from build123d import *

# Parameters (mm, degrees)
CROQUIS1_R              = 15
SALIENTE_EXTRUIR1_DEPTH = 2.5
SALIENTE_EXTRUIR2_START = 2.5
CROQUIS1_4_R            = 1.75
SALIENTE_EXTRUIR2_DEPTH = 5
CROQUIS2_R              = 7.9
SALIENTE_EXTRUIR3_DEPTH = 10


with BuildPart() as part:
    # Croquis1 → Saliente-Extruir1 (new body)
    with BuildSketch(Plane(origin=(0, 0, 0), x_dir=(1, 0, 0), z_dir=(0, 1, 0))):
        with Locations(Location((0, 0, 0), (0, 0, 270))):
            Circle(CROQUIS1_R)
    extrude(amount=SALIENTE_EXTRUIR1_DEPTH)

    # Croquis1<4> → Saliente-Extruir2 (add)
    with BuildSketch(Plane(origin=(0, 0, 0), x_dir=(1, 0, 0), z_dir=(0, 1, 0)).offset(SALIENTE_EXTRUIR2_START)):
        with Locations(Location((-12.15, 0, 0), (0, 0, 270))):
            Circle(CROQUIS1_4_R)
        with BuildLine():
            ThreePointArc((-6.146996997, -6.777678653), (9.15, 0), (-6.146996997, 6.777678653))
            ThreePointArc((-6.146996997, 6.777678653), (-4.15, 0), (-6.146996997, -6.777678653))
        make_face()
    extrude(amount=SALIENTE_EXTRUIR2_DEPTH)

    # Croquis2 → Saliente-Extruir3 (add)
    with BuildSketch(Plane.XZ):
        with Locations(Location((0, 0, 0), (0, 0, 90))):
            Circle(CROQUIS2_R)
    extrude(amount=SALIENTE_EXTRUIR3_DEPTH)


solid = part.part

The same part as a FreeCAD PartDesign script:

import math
import FreeCAD as App
import Part
import Sketcher
Q = App.Units.Quantity

doc = App.newDocument("Part")
params = doc.addObject("Spreadsheet::Sheet", "Params")
for row, (alias, value) in enumerate([
    ("sketch1_diameter", "30 mm"),
    ("pad1_length", "2.5 mm"),
    ("sketch2_diameter", "3.5 mm"),
    ("sketch2_radius", "12.5 mm"),
    ("sketch2_radius2", "9.15 mm"),
    ("pad2_length", "5 mm"),
    ("sketch3_diameter", "15.8 mm"),
    ("pad3_length", "10 mm"),
], start=1):
    params.set(f"A{row}", alias)
    params.set(f"B{row}", "=" + value)
    params.setAlias(f"B{row}", alias)

body = doc.addObject("PartDesign::Body", "Body")

# Sketch on XZ plane
sketch1 = doc.addObject("Sketcher::SketchObject", "Sketch")
body.addObject(sketch1)
sketch1.AttachmentSupport = (doc.XZ_Plane, [""])
sketch1.MapMode = "FlatFace"
sketch1.addGeometry(Part.Circle(App.Vector(0, 0, 0), App.Vector(0, 0, 1), 15), False)
sketch1.addConstraint(Sketcher.Constraint("Coincident", 0, 3, -1, 1))
sketch1.addConstraint(Sketcher.Constraint("Diameter", 0, Q("30 mm")))
sketch1.setExpression("Constraints[1]", "Params.sketch1_diameter")
pad1 = doc.addObject("PartDesign::Pad", "Pad")
body.addObject(pad1)
pad1.Profile = sketch1
pad1.setExpression("Length", "Params.pad1_length")
pad1.Reversed = True

# Sketch on XZ plane
sketch2 = doc.addObject("Sketcher::SketchObject", "Sketch001")
body.addObject(sketch2)
sketch2.AttachmentSupport = (doc.XZ_Plane, [""])
sketch2.MapMode = "FlatFace"
sketch2.AttachmentOffset = App.Placement(App.Vector(0, 0, -2.5), App.Rotation())
sketch2.addGeometry(Part.Circle(App.Vector(-12.2, 0, 0), App.Vector(0, 0, 1), 1.8), False)
sketch2.addGeometry(Part.ArcOfCircle(Part.Circle(App.Vector(0, 0, 0), App.Vector(0, 0, 1), 9.2), math.radians(-132), math.radians(132)), False)
sketch2.addGeometry(Part.ArcOfCircle(Part.Circle(App.Vector(-16.7, 0, 0), App.Vector(0, 0, 1), 12.5), math.radians(-33), math.radians(33)), False)
sketch2.addConstraint(Sketcher.Constraint("Coincident", 1, 1, 2, 1))
sketch2.addConstraint(Sketcher.Constraint("Coincident", 2, 2, 1, 2))
sketch2.addConstraint(Sketcher.Constraint("Coincident", 1, 3, -1, 1))
sketch2.addConstraint(Sketcher.Constraint("PointOnObject", 0, 3, -1))
sketch2.addConstraint(Sketcher.Constraint("PointOnObject", 2, 3, -1))
sketch2.addConstraint(Sketcher.Constraint("Diameter", 0, Q("3.5 mm")))
sketch2.addConstraint(Sketcher.Constraint("Radius", 2, Q("12.5 mm")))
sketch2.addConstraint(Sketcher.Constraint("Radius", 1, Q("9.15 mm")))
sketch2.addConstraint(Sketcher.Constraint("DistanceX", 2, 3, 0, 3, Q("4.5 mm")))
sketch2.addConstraint(Sketcher.Constraint("DistanceX", 0, 3, -1, 1, Q("12.15 mm")))
sketch2.setExpression("Constraints[5]", "Params.sketch2_diameter")
sketch2.setExpression("Constraints[6]", "Params.sketch2_radius")
sketch2.setExpression("Constraints[7]", "Params.sketch2_radius2")
pad2 = doc.addObject("PartDesign::Pad", "Pad001")
body.addObject(pad2)
pad2.Profile = sketch2
pad2.setExpression("Length", "Params.pad2_length")
pad2.Reversed = True

# Sketch on XZ plane
sketch3 = doc.addObject("Sketcher::SketchObject", "Sketch002")
body.addObject(sketch3)
sketch3.AttachmentSupport = (doc.XZ_Plane, [""])
sketch3.MapMode = "FlatFace"
sketch3.addGeometry(Part.Circle(App.Vector(0, 0, 0), App.Vector(0, 0, 1), 8), False)
sketch3.addConstraint(Sketcher.Constraint("Coincident", 0, 3, -1, 1))
sketch3.addConstraint(Sketcher.Constraint("Diameter", 0, Q("15.8 mm")))
sketch3.setExpression("Constraints[1]", "Params.sketch3_diameter")
pad3 = doc.addObject("PartDesign::Pad", "Pad002")
body.addObject(pad3)
pad3.Profile = sketch3
pad3.setExpression("Length", "Params.pad3_length")

doc.recompute()
